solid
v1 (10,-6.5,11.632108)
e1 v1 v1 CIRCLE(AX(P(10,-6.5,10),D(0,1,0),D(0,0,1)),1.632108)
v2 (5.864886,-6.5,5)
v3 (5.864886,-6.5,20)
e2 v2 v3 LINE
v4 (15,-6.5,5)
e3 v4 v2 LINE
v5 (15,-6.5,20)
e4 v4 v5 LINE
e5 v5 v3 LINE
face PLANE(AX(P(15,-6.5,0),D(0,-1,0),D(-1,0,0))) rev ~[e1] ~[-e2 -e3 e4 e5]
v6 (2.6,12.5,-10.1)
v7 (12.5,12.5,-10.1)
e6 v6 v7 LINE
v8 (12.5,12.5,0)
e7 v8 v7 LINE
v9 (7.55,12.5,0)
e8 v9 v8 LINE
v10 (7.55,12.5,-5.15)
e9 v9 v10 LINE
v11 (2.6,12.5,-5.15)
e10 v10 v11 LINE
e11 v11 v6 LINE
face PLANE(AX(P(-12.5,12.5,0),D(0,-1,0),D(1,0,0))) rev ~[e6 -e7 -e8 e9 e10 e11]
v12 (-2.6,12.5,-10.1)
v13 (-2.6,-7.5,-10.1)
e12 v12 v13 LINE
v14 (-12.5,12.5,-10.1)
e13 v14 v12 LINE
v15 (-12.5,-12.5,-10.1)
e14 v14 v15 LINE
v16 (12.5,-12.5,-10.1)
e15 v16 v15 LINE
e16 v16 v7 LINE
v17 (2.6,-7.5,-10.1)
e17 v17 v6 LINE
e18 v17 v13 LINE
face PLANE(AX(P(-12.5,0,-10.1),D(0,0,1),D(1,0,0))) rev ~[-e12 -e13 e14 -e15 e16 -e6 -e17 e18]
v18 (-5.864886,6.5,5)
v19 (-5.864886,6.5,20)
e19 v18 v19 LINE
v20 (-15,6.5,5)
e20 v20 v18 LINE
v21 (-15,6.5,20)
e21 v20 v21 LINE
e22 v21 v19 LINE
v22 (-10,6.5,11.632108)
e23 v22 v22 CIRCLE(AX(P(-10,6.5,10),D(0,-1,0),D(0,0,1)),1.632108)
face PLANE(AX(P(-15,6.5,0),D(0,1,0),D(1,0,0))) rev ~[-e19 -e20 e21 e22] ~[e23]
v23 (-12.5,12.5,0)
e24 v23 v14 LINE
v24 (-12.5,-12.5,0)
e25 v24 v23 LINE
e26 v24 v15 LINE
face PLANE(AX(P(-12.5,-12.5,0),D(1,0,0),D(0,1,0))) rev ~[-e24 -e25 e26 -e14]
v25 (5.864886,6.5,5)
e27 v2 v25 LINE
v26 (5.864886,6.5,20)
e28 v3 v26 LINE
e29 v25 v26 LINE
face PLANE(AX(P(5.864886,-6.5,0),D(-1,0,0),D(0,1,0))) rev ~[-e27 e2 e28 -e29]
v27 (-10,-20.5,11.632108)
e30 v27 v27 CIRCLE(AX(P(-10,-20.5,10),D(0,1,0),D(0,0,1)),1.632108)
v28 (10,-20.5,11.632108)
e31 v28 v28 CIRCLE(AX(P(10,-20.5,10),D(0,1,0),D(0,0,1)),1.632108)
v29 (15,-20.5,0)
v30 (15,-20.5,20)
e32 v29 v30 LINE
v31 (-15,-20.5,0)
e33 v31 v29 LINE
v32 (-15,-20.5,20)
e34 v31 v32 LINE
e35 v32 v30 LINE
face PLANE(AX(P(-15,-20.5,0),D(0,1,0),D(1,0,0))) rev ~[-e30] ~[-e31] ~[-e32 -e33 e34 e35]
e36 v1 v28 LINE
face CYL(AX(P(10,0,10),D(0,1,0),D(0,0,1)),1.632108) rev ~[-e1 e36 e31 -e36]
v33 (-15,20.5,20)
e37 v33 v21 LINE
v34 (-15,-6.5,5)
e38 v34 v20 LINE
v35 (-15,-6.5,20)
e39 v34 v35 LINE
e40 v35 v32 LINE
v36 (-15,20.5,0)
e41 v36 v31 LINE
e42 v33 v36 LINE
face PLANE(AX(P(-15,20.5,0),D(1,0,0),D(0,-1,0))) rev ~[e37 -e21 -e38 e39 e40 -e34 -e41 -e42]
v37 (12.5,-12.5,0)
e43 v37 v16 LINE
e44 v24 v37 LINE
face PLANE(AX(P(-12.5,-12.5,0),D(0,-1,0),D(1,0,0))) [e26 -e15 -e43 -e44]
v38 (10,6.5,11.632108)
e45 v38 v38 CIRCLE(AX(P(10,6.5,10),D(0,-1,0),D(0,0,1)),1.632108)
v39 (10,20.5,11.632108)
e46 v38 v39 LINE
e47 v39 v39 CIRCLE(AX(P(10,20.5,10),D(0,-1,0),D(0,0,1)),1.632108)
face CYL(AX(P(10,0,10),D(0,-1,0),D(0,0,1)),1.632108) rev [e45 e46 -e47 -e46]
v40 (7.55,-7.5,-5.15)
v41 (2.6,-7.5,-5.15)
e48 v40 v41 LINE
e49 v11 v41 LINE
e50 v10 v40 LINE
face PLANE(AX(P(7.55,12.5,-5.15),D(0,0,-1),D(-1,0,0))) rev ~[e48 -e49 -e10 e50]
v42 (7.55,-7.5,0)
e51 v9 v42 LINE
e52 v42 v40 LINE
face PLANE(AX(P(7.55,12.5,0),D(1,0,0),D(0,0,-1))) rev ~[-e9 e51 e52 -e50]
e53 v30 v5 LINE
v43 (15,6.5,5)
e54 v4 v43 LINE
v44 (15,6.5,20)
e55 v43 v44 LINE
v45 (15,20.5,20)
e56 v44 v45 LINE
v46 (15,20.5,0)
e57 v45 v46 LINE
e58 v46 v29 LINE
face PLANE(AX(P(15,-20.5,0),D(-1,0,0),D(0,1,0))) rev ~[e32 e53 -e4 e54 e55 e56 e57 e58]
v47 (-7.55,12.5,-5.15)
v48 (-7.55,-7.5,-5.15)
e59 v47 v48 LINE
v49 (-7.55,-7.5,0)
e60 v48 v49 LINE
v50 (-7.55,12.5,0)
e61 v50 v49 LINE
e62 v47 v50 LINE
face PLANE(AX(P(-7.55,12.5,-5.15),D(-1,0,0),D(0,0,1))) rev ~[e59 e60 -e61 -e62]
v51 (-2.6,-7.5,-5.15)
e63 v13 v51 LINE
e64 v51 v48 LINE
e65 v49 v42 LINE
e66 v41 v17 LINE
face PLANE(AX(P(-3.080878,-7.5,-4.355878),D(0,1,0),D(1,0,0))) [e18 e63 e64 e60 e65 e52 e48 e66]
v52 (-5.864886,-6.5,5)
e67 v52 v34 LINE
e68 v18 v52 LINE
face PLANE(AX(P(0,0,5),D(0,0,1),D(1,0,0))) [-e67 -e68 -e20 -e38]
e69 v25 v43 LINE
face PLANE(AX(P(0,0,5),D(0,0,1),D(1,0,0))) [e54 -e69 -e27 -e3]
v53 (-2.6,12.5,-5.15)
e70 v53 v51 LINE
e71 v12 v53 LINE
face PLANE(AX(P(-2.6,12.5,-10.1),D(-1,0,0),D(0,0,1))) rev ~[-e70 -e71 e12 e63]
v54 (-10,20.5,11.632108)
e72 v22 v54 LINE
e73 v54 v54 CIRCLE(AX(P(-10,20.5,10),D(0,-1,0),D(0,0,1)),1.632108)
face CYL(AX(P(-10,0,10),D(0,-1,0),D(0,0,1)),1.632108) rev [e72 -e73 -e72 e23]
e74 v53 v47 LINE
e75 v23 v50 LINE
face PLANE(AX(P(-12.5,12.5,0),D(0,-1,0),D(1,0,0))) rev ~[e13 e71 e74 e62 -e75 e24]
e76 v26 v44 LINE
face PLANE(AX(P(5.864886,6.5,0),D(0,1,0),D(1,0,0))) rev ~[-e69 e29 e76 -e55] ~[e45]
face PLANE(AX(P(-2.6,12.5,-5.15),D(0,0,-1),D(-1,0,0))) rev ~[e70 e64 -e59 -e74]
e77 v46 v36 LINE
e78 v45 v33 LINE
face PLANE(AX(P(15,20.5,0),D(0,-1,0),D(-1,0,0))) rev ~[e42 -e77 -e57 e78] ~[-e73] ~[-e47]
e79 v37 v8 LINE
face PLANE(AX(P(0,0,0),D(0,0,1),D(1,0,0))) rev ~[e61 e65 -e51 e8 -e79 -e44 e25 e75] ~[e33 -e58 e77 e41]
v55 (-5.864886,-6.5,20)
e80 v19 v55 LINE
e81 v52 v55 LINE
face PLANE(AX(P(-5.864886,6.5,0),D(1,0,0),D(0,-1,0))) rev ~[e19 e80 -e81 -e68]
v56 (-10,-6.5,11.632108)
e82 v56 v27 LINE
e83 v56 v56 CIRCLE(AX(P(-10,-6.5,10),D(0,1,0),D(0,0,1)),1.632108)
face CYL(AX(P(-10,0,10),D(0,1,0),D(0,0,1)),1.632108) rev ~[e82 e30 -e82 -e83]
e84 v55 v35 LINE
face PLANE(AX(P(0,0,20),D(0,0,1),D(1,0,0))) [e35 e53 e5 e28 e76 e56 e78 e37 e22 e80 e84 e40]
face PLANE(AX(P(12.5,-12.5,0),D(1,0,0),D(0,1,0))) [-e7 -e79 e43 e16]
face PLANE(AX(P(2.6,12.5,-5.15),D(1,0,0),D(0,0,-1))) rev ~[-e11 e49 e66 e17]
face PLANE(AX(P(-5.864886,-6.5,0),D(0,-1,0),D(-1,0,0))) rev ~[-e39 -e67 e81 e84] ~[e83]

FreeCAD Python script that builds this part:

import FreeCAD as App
import Part
import Sketcher
from FreeCAD import Vector
Q = App.Units.Quantity


def add_polygon(sketch, points):
    """Adds a closed chain of lines whose ends are joined by coincident constraints."""
    first, n = sketch.GeometryCount, len(points)
    for a, b in zip(points, points[1:] + points[:1]):
        sketch.addGeometry(Part.LineSegment(App.Vector(*a, 0), App.Vector(*b, 0)), False)
    for i in range(n):
        sketch.addConstraint(Sketcher.Constraint("Coincident", first + i, 2, first + (i + 1) % n, 1))

doc = App.newDocument("Part")
body = doc.addObject("PartDesign::Body", "Body")

# Sketch on XY plane
sketch1 = body.newObject("Sketcher::SketchObject", "Sketch")
sketch1.AttachmentSupport = (doc.getObject("XY_Plane"), [""])
sketch1.MapMode = "FlatFace"
add_polygon(sketch1, [(-15, 20), (-15, 6), (-6, 6), (-6, -6), (-15, -6), (-15, -20), (15, -20), (15, -6), (6, -6), (6, 6), (15, 6), (15, 20)])  # lines 0-11
sketch1.addConstraint([
    Sketcher.Constraint("Vertical", 0),
    Sketcher.Constraint("Horizontal", 1),
    Sketcher.Constraint("Vertical", 2),
    Sketcher.Constraint("Horizontal", 3),
    Sketcher.Constraint("Vertical", 4),
    Sketcher.Constraint("Horizontal", 5),
    Sketcher.Constraint("Vertical", 6),
    Sketcher.Constraint("Horizontal", 7),
    Sketcher.Constraint("Vertical", 8),
    Sketcher.Constraint("Horizontal", 9),
    Sketcher.Constraint("Vertical", 10),
    Sketcher.Constraint("Horizontal", 11),
    Sketcher.Constraint("Symmetric", 0, 2, 6, 2, -1, 1),
    Sketcher.Constraint("Symmetric", 2, 2, 8, 2, -1, 1),
    Sketcher.Constraint("Symmetric", 4, 2, 10, 2, -1, 1),
    Sketcher.Constraint("Symmetric", 3, 2, 6, 2, -2),
    Sketcher.Constraint("DistanceX", 5, 1, 5, 2, Q("30 mm")),
    Sketcher.Constraint("DistanceY", 0, 2, 0, 1, Q("14 mm")),
    Sketcher.Constraint("DistanceY", 2, 2, 2, 1, Q("13 mm")),
    Sketcher.Constraint("DistanceX", 1, 1, 1, 2, Q("9.135114 mm")),
])
pad1 = body.newObject("PartDesign::Pad", "Pad")
pad1.Profile = sketch1
pad1.Length = 20

# Sketch on XZ plane
sketch2 = body.newObject("Sketcher::SketchObject", "Sketch001")
sketch2.AttachmentSupport = (doc.getObject("XZ_Plane"), [""])
sketch2.MapMode = "FlatFace"
sketch2.addGeometry([
    Part.Circle(Vector(-10, 10, 0), Vector(0, 0, 1), 1.6),
    Part.Circle(Vector(10, 10, 0), Vector(0, 0, 1), 1.6),
], False)
sketch2.addConstraint([
    Sketcher.Constraint("Equal", 0, 1),
    Sketcher.Constraint("Symmetric", 0, 3, 1, 3, -2),
    Sketcher.Constraint("DistanceX", 0, 3, -1, 1, Q("10 mm")),
    Sketcher.Constraint("DistanceY", -1, 1, 0, 3, Q("10 mm")),
    Sketcher.Constraint("Diameter", 0, Q("3.264217 mm")),
])
pocket1 = body.newObject("PartDesign::Pocket", "Pocket")
pocket1.Profile = sketch2
pocket1.Type = "ThroughAll"
pocket1.Midplane = True

# Sketch on XY plane
sketch3 = body.newObject("Sketcher::SketchObject", "Sketch002")
sketch3.AttachmentSupport = (doc.getObject("XY_Plane"), [""])
sketch3.MapMode = "FlatFace"
add_polygon(sketch3, [(-15, 20), (-15, -20), (15, -20), (15, 20)])  # lines 0-3
sketch3.addConstraint([
    Sketcher.Constraint("Vertical", 0),
    Sketcher.Constraint("Horizontal", 1),
    Sketcher.Constraint("Vertical", 2),
    Sketcher.Constraint("Horizontal", 3),
    Sketcher.Constraint("Symmetric", 0, 2, 2, 2, -1, 1),
    Sketcher.Constraint("DistanceX", 1, 1, 1, 2, Q("30 mm")),
    Sketcher.Constraint("DistanceY", 0, 2, 0, 1, Q("41 mm")),
])
pad2 = body.newObject("PartDesign::Pad", "Pad001")
pad2.Profile = sketch3
pad2.Length = 5

# Sketch on XY plane
sketch4 = body.newObject("Sketcher::SketchObject", "Sketch003")
sketch4.AttachmentSupport = (doc.getObject("XY_Plane"), [""])
sketch4.MapMode = "FlatFace"
add_polygon(sketch4, [(-12, 12), (-12, -12), (12, -12), (12, 12)])  # lines 0-3
sketch4.addConstraint([
    Sketcher.Constraint("Vertical", 0),
    Sketcher.Constraint("Horizontal", 1),
    Sketcher.Constraint("Vertical", 2),
    Sketcher.Constraint("Horizontal", 3),
    Sketcher.Constraint("Symmetric", 0, 2, 2, 2, -1, 1),
    Sketcher.Constraint("Equal", 3, 0),
    Sketcher.Constraint("DistanceX", 1, 1, 1, 2, Q("25 mm")),
])
pad3 = body.newObject("PartDesign::Pad", "Pad002")
pad3.Profile = sketch4
pad3.Length = 20
pad3.Reversed = True

# Sketch on XZ plane
sketch5 = body.newObject("Sketcher::SketchObject", "Sketch004")
sketch5.AttachmentSupport = (doc.getObject("XZ_Plane"), [""])
sketch5.MapMode = "FlatFace"
sketch5.AttachmentOffset = App.Placement(Vector(0, 0, -12.5), App.Rotation())
add_polygon(sketch5, [(-2.6, -5.2), (-7.5, -5.2), (-7.5, 0), (7.5, 0), (7.5, -5.2), (2.6, -5.2), (2.6, -10.1), (-2.6, -10.1)])  # lines 0-7
sketch5.addConstraint([
    Sketcher.Constraint("Horizontal", 0),
    Sketcher.Constraint("Vertical", 1),
    Sketcher.Constraint("Horizontal", 2),
    Sketcher.Constraint("Vertical", 3),
    Sketcher.Constraint("Horizontal", 4),
    Sketcher.Constraint("Vertical", 5),
    Sketcher.Constraint("Horizontal", 6),
    Sketcher.Constraint("Vertical", 7),
    Sketcher.Constraint("Symmetric", 1, 2, 2, 2, -1, 1),
    Sketcher.Constraint("Symmetric", 4, 2, 7, 2, -2),
    Sketcher.Constraint("Equal", 4, 5),
    Sketcher.Constraint("DistanceX", 2, 1, 2, 2, Q("15.1 mm")),
    Sketcher.Constraint("DistanceX", 6, 2, 6, 1, Q("5.2 mm")),
    Sketcher.Constraint("DistanceY", 1, 1, 1, 2, Q("5.15 mm")),
])
pocket2 = body.newObject("PartDesign::Pocket", "Pocket001")
pocket2.Profile = sketch5
pocket2.Length = 20
pocket2.Reversed = True

# Sketch on XZ plane
sketch6 = body.newObject("Sketcher::SketchObject", "Sketch005")
sketch6.AttachmentSupport = (doc.getObject("XZ_Plane"), [""])
sketch6.MapMode = "FlatFace"
add_polygon(sketch6, [(-12, -20), (-12, -10), (12, -10), (12, -20)])  # lines 0-3
sketch6.addConstraint([
    Sketcher.Constraint("Vertical", 0),
    Sketcher.Constraint("Horizontal", 1),
    Sketcher.Constraint("Vertical", 2),
    Sketcher.Constraint("Horizontal", 3),
    Sketcher.Constraint("DistanceX", 1, 1, 1, 2, Q("25 mm")),
    Sketcher.Constraint("DistanceY", 0, 1, 0, 2, Q("9.9 mm")),
    Sketcher.Constraint("DistanceY", 2, 2, -1, 1, Q("20 mm")),
    Sketcher.Constraint("DistanceX", 0, 2, -1, 1, Q("12.5 mm")),
])
pocket3 = body.newObject("PartDesign::Pocket", "Pocket002")
pocket3.Profile = sketch6
pocket3.Type = "ThroughAll"
pocket3.Midplane = True

doc.recompute()
